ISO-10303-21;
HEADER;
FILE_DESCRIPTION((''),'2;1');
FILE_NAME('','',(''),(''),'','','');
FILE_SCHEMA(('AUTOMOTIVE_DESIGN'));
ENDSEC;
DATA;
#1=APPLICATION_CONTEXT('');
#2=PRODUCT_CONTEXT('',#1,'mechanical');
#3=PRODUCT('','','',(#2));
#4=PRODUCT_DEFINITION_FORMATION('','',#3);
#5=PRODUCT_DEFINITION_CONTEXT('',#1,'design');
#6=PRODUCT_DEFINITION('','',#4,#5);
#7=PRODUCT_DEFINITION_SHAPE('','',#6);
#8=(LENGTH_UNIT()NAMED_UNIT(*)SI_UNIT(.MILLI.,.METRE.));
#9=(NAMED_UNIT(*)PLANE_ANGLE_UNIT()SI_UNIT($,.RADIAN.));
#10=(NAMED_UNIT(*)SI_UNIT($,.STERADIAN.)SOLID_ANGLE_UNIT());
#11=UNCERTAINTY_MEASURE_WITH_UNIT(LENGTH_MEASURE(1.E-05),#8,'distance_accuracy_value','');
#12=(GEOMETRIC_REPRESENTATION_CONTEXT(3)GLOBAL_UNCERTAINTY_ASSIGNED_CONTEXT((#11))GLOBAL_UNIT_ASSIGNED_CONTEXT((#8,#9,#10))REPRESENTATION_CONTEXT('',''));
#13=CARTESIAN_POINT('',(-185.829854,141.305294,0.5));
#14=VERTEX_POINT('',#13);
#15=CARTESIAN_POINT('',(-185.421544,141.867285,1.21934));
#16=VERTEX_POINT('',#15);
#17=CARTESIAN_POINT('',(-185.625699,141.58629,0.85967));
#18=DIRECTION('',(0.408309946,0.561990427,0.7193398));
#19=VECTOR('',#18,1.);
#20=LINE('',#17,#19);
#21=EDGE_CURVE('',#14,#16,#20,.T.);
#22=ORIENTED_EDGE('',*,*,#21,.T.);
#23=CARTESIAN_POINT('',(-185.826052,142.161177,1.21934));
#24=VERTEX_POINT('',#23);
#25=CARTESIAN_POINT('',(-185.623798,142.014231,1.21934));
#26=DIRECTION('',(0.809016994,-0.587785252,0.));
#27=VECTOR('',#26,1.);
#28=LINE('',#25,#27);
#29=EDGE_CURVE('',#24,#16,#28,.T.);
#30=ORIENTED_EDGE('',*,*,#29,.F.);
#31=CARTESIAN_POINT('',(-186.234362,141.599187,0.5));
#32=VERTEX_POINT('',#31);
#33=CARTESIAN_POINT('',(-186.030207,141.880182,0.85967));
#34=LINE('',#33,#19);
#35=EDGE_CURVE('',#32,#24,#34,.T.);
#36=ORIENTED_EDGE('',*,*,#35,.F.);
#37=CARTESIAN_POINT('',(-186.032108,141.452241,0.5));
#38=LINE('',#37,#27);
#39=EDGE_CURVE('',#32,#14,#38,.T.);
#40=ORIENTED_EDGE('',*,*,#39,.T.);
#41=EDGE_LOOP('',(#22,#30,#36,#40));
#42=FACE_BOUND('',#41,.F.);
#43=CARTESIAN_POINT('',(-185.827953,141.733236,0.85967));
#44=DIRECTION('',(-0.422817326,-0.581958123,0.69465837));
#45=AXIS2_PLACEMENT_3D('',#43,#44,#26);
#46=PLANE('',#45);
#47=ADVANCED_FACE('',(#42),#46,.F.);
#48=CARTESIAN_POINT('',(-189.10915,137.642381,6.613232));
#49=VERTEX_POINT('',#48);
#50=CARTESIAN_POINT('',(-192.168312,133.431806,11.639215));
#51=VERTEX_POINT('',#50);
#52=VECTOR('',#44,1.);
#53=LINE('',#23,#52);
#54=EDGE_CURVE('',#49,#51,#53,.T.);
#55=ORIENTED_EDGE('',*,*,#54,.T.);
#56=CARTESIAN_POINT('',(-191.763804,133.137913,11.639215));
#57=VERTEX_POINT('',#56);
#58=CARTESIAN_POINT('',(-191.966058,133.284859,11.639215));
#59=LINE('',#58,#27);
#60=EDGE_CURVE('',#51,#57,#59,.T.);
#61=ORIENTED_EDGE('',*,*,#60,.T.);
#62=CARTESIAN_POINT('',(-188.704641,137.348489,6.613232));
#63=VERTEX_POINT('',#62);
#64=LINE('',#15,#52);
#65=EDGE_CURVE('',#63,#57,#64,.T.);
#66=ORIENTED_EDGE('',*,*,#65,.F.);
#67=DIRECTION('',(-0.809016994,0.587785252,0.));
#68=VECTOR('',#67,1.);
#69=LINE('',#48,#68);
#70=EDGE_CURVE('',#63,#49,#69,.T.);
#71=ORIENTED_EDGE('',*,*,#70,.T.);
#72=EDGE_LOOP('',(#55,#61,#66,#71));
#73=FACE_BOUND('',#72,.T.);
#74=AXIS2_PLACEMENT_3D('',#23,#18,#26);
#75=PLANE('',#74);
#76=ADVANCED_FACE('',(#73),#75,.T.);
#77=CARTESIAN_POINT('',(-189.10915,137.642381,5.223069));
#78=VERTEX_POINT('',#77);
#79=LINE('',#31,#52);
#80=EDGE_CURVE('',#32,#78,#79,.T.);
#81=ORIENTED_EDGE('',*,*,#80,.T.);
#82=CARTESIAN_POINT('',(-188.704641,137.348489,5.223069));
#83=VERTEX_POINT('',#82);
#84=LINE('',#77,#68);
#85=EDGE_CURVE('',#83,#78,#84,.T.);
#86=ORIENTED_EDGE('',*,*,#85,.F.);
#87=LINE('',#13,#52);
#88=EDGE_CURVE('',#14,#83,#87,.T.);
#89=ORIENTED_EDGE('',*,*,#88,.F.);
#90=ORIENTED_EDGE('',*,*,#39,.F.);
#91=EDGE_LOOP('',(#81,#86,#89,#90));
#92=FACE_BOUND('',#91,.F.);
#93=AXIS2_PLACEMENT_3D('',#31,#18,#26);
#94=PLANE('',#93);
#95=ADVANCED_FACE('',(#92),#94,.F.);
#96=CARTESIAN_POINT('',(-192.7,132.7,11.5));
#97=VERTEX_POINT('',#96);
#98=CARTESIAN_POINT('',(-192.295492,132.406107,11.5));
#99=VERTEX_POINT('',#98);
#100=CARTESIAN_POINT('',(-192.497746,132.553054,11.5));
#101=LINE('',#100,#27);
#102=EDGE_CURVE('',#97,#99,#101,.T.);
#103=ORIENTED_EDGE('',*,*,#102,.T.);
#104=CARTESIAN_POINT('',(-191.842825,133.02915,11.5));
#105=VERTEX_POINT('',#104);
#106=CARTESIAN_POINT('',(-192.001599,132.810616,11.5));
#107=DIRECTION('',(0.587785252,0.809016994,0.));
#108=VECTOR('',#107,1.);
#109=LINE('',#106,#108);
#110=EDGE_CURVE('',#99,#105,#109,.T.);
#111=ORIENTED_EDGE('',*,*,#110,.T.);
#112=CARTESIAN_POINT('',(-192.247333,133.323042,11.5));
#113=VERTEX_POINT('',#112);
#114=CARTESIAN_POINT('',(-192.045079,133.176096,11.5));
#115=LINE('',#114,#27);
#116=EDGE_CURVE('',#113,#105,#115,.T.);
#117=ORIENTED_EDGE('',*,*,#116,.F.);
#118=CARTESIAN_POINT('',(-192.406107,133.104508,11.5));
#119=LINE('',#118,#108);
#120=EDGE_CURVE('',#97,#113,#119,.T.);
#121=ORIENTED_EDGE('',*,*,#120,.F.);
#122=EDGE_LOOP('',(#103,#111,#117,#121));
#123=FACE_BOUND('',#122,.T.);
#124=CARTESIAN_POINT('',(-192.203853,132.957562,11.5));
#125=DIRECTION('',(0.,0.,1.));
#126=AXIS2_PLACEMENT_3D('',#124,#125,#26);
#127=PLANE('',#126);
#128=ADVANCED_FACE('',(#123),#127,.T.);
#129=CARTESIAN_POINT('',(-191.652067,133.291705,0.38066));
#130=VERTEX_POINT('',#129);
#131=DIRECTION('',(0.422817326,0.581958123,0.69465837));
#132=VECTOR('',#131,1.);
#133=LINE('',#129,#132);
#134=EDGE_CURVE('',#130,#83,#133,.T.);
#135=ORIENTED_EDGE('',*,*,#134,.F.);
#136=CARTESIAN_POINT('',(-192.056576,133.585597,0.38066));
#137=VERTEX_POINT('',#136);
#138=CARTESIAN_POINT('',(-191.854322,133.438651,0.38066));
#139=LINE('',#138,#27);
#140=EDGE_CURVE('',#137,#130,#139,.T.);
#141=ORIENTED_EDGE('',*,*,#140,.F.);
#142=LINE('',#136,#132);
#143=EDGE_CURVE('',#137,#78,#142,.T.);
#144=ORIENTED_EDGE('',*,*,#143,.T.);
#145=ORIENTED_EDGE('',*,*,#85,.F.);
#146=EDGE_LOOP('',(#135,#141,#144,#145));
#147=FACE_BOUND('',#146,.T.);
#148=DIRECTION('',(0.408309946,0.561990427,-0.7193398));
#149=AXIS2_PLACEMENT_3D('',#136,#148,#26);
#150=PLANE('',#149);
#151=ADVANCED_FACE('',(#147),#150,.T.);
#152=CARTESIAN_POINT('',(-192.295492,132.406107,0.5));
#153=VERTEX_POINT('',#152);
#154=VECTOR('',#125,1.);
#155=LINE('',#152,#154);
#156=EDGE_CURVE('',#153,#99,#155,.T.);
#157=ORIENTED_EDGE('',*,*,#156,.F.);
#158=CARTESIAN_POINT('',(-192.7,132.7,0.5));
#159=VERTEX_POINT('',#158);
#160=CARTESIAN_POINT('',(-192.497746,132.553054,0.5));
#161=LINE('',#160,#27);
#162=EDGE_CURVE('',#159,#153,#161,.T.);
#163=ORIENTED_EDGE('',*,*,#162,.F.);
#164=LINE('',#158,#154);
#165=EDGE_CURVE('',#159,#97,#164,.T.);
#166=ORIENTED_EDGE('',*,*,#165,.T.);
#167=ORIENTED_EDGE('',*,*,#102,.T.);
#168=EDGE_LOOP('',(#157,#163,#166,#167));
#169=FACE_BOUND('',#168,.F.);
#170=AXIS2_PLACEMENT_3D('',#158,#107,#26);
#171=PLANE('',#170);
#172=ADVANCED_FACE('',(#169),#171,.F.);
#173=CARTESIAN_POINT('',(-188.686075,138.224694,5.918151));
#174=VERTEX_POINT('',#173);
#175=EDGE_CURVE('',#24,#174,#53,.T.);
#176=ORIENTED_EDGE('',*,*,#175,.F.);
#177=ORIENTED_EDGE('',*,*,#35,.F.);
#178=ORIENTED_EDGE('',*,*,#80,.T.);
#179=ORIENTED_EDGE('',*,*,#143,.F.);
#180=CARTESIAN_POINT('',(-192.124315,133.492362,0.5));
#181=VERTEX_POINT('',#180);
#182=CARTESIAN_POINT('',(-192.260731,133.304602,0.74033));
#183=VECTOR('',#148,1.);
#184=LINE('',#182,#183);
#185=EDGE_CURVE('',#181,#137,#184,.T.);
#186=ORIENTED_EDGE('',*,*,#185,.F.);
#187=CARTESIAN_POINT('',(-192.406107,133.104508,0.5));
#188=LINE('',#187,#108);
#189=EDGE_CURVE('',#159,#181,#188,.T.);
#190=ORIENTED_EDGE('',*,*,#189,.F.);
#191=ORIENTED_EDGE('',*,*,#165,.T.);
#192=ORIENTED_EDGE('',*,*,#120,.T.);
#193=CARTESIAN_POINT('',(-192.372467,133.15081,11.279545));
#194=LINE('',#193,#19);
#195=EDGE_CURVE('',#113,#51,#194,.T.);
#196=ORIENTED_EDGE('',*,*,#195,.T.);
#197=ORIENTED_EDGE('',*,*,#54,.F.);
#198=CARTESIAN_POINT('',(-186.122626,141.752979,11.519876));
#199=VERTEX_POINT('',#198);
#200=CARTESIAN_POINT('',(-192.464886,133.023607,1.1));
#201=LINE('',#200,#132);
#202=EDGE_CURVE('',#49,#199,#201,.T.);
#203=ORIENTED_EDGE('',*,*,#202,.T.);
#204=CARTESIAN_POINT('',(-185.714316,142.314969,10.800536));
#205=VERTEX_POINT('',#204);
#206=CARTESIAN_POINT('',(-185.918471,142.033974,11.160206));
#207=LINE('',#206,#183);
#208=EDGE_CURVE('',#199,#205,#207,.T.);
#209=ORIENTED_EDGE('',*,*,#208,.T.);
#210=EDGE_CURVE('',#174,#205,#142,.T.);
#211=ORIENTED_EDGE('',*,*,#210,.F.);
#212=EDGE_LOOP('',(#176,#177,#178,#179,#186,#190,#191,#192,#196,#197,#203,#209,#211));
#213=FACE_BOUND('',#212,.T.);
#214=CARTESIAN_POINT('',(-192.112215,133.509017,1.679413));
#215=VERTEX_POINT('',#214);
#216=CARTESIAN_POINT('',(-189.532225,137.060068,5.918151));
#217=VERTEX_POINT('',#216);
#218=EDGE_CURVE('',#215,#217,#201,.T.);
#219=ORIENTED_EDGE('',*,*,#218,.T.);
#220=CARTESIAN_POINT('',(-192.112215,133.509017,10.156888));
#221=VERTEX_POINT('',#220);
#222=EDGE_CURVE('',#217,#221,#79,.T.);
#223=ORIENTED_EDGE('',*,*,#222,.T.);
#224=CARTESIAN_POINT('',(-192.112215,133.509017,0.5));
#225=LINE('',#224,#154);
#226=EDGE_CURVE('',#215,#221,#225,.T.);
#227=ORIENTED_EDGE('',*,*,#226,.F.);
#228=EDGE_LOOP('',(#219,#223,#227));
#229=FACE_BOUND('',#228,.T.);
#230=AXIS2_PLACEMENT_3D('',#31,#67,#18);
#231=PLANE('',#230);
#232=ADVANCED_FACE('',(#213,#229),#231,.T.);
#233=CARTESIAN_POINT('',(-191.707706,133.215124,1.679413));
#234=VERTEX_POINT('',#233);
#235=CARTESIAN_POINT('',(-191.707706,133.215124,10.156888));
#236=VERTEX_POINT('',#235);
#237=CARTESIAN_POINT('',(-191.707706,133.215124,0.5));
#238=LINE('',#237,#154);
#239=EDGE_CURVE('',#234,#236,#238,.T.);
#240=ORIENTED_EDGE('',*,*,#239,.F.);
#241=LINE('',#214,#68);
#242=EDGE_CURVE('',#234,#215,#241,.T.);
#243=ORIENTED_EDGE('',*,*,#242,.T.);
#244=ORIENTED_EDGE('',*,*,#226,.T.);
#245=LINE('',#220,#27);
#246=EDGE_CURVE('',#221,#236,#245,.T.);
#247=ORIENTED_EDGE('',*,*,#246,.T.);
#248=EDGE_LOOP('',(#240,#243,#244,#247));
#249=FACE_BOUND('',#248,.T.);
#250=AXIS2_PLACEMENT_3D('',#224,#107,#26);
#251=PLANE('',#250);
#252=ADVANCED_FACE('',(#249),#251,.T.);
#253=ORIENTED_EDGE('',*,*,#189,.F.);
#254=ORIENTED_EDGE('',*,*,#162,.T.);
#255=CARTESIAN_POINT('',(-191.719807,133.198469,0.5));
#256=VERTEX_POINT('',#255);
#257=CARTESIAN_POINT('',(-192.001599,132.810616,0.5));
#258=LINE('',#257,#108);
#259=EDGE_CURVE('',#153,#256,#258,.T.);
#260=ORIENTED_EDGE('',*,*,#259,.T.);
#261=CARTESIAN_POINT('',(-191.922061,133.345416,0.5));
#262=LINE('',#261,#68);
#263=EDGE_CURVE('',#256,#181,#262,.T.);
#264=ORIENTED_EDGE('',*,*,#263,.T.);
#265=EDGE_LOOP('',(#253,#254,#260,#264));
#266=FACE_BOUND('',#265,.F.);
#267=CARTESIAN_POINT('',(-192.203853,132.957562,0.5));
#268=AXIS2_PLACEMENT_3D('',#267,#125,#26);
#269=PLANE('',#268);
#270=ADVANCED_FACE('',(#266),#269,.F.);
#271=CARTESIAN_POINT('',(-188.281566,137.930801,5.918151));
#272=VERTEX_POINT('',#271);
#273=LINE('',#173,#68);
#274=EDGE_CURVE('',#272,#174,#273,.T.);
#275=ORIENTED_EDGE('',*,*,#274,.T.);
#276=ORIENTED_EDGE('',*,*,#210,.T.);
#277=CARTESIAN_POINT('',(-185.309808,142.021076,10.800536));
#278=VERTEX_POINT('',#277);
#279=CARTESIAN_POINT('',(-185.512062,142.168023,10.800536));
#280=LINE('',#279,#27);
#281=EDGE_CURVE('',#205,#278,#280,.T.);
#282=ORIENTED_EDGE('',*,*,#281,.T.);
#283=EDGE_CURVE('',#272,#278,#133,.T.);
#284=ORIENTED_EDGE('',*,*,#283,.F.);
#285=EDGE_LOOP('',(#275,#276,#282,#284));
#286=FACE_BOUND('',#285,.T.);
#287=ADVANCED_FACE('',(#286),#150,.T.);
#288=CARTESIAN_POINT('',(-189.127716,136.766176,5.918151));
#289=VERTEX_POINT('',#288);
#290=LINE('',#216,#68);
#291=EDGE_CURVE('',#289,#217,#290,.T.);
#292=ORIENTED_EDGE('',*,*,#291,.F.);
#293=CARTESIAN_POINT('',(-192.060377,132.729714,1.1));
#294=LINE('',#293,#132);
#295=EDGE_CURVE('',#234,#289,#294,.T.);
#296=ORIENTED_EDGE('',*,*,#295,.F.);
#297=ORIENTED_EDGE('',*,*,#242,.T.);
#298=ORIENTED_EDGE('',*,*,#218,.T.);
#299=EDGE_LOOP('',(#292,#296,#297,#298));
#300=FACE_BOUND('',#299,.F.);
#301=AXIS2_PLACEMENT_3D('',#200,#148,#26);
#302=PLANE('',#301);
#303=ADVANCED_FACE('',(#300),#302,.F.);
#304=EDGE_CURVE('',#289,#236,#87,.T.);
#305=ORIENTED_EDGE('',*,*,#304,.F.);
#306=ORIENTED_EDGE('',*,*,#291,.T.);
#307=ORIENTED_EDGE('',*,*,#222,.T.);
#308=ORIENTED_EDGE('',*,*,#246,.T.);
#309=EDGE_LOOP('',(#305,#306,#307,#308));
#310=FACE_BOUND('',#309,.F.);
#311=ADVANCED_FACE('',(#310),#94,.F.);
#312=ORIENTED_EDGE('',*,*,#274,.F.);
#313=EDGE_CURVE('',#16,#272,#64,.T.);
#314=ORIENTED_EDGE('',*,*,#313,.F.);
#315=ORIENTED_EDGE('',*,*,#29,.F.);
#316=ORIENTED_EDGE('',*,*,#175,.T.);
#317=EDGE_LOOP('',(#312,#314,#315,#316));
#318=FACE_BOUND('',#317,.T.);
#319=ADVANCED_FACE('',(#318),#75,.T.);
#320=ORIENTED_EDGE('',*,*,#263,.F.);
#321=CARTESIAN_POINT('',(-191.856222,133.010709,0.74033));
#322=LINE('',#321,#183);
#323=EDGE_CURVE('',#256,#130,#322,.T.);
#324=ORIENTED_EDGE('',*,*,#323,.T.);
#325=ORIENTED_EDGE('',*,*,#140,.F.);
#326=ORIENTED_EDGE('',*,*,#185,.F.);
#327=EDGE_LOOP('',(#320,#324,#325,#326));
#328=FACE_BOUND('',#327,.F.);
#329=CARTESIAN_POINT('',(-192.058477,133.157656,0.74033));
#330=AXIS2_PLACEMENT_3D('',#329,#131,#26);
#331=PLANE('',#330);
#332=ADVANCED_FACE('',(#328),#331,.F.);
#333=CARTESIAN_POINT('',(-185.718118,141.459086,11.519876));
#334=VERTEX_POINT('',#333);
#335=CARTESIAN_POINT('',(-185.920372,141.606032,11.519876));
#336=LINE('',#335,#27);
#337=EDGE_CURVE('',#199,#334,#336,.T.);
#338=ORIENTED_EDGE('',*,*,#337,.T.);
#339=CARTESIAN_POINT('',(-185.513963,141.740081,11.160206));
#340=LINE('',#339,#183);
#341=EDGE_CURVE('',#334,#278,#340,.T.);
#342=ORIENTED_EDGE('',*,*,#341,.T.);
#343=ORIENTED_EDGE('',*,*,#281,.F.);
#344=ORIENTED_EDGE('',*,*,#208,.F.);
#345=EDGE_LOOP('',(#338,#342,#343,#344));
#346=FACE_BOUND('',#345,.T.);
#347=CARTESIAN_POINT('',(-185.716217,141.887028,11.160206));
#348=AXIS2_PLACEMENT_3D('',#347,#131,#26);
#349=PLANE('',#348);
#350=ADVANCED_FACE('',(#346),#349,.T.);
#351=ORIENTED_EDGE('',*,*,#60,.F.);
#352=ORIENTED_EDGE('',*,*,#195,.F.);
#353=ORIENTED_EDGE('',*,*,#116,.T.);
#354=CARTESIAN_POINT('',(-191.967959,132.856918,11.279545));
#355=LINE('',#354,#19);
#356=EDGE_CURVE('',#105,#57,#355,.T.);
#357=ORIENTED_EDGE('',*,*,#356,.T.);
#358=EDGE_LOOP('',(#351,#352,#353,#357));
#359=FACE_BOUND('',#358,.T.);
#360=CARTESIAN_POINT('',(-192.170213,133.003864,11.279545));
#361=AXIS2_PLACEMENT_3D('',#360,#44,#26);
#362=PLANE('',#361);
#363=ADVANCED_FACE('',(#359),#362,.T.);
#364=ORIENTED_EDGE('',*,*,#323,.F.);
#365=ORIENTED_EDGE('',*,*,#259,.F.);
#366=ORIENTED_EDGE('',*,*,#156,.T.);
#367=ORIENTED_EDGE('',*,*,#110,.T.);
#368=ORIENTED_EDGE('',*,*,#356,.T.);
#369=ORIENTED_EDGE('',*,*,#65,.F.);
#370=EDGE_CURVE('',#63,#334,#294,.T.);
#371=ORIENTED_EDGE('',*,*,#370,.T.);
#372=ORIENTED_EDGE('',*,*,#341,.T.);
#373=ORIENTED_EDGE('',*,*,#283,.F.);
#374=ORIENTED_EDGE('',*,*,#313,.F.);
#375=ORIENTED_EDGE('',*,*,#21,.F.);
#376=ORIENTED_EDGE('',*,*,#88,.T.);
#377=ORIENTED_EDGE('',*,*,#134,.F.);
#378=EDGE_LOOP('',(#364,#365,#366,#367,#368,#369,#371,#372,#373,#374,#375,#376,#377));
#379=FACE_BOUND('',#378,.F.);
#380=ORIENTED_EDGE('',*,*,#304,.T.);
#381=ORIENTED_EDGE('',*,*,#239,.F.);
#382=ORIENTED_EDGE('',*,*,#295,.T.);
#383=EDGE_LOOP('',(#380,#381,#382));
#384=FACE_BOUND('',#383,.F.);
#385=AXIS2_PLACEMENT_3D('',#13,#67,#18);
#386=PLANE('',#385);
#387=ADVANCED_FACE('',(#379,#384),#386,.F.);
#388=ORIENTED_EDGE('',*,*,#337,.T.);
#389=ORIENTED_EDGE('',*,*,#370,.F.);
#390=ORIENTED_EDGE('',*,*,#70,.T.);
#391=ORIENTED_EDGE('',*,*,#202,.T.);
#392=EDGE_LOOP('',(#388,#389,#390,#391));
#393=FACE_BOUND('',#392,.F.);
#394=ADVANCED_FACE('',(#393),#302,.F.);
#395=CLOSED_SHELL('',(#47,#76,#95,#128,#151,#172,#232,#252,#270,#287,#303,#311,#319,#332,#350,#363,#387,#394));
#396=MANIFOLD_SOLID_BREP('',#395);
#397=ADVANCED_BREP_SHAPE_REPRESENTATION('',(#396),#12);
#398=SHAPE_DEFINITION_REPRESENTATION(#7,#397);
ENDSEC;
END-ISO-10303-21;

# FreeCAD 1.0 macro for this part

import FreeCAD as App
import Part
import Sketcher
from FreeCAD import Vector
Q = App.Units.Quantity

doc = App.newDocument("Part")
params = doc.addObject("Spreadsheet::Sheet", "Params")
for row, (alias, value) in enumerate([
    ("sketch1_height", "1 mm"),
    ("sketch1_width", "0.5 mm"),
    ("pad1_length", "15 mm"),
    ("sketch2_height", "1 mm"),
    ("sketch2_width", "0.5 mm"),
    ("pad2_length", "15 mm"),
    ("sketch3_height", "1 mm"),
    ("sketch3_width", "0.5 mm"),
    ("pad3_length", "11 mm"),
], start=1):
    params.set(f"A{row}", alias)
    params.set(f"B{row}", "=" + value)
    params.setAlias(f"B{row}", alias)

body = doc.addObject("PartDesign::Body", "Body")

# Sketch on XY plane
sketch1 = body.newObject("Sketcher::SketchObject", "Sketch")
sketch1.AttachmentSupport = (doc.getObject("XY_Plane"), [""])
sketch1.MapMode = "FlatFace"
sketch1.addGeometry(Part.LineSegment(Vector(0, 1, 0), Vector(0, 0, 0)), False)
sketch1.addGeometry(Part.LineSegment(Vector(0, 0, 0), Vector(0.5, 0, 0)), False)
sketch1.addGeometry(Part.LineSegment(Vector(0.5, 0, 0), Vector(0.5, 1, 0)), False)
sketch1.addGeometry(Part.LineSegment(Vector(0.5, 1, 0), Vector(0, 1, 0)), False)
sketch1.addConstraint(Sketcher.Constraint("Coincident", 0, 2, 1, 1))
sketch1.addConstraint(Sketcher.Constraint("Coincident", 1, 2, 2, 1))
sketch1.addConstraint(Sketcher.Constraint("Coincident", 2, 2, 3, 1))
sketch1.addConstraint(Sketcher.Constraint("Coincident", 3, 2, 0, 1))
sketch1.addConstraint(Sketcher.Constraint("Vertical", 0))
sketch1.addConstraint(Sketcher.Constraint("Horizontal", 1))
sketch1.addConstraint(Sketcher.Constraint("Vertical", 2))
sketch1.addConstraint(Sketcher.Constraint("Horizontal", 3))
sketch1.addConstraint(Sketcher.Constraint("Coincident", 0, 2, -1, 1))
sketch1.addConstraint(Sketcher.Constraint("DistanceY", 0, 2, 0, 1, Q("1 mm")))
sketch1.addConstraint(Sketcher.Constraint("DistanceX", 1, 1, 1, 2, Q("0.5 mm")))
sketch1.setExpression("Constraints[9]", "Params.sketch1_height")
sketch1.setExpression("Constraints[10]", "Params.sketch1_width")
pad1 = body.newObject("PartDesign::Pad", "Pad")
pad1.Profile = sketch1
pad1.setExpression("Length", "Params.pad1_length")
body2 = doc.addObject("PartDesign::Body", "Body001")
doc.recompute()

body.Placement = App.Placement(Vector(0, 0, 0), App.Rotation(Vector(1, 0, 0), 46))
boolean = body2.newObject("PartDesign::Boolean", "Boolean")
boolean.Type = "Fuse"
boolean.addObjects([body])
body3 = doc.addObject("PartDesign::Body", "Body002")
doc.recompute()

body2.Placement = App.Placement(Vector(0, 11, 0.5), App.Rotation(Vector(0, 0, 1), 0))
boolean2 = body3.newObject("PartDesign::Boolean", "Boolean001")
boolean2.Type = "Fuse"
boolean2.addObjects([body2])
body4 = doc.addObject("PartDesign::Body", "Body003")

# Sketch on XY plane
sketch2 = body4.newObject("Sketcher::SketchObject", "Sketch001")
sketch2.AttachmentSupport = (doc.getObject("XY_Plane003"), [""])
sketch2.MapMode = "FlatFace"
sketch2.addGeometry(Part.LineSegment(Vector(0, 1, 0), Vector(0, 0, 0)), False)
sketch2.addGeometry(Part.LineSegment(Vector(0, 0, 0), Vector(0.5, 0, 0)), False)
sketch2.addGeometry(Part.LineSegment(Vector(0.5, 0, 0), Vector(0.5, 1, 0)), False)
sketch2.addGeometry(Part.LineSegment(Vector(0.5, 1, 0), Vector(0, 1, 0)), False)
sketch2.addConstraint(Sketcher.Constraint("Coincident", 0, 2, 1, 1))
sketch2.addConstraint(Sketcher.Constraint("Coincident", 1, 2, 2, 1))
sketch2.addConstraint(Sketcher.Constraint("Coincident", 2, 2, 3, 1))
sketch2.addConstraint(Sketcher.Constraint("Coincident", 3, 2, 0, 1))
sketch2.addConstraint(Sketcher.Constraint("Vertical", 0))
sketch2.addConstraint(Sketcher.Constraint("Horizontal", 1))
sketch2.addConstraint(Sketcher.Constraint("Vertical", 2))
sketch2.addConstraint(Sketcher.Constraint("Horizontal", 3))
sketch2.addConstraint(Sketcher.Constraint("Coincident", 0, 2, -1, 1))
sketch2.addConstraint(Sketcher.Constraint("DistanceY", 0, 2, 0, 1, Q("1 mm")))
sketch2.addConstraint(Sketcher.Constraint("DistanceX", 1, 1, 1, 2, Q("0.5 mm")))
sketch2.setExpression("Constraints[9]", "Params.sketch2_height")
sketch2.setExpression("Constraints[10]", "Params.sketch2_width")
pad2 = body4.newObject("PartDesign::Pad", "Pad001")
pad2.Profile = sketch2
pad2.setExpression("Length", "Params.pad2_length")
body5 = doc.addObject("PartDesign::Body", "Body004")
doc.recompute()

body4.Placement = App.Placement(Vector(0, 0, 0), App.Rotation(Vector(1, 0, 0), 314))
boolean3 = body5.newObject("PartDesign::Boolean", "Boolean002")
boolean3.Type = "Fuse"
boolean3.addObjects([body4])
body6 = doc.addObject("PartDesign::Body", "Body005")
doc.recompute()

body5.Placement = App.Placement(Vector(0, 0.4, 1.1), App.Rotation(Vector(0, 0, 1), 0))
boolean4 = body6.newObject("PartDesign::Boolean", "Boolean003")
boolean4.Type = "Fuse"
boolean4.addObjects([body5])
body7 = doc.addObject("PartDesign::Body", "Body006")

# Sketch on XY plane
sketch3 = body7.newObject("Sketcher::SketchObject", "Sketch002")
sketch3.AttachmentSupport = (doc.getObject("XY_Plane006"), [""])
sketch3.MapMode = "FlatFace"
sketch3.AttachmentOffset = App.Placement(Vector(0, 0, 0.5), App.Rotation())
sketch3.addGeometry(Part.LineSegment(Vector(0, 1, 0), Vector(0, 0, 0)), False)
sketch3.addGeometry(Part.LineSegment(Vector(0, 0, 0), Vector(0.5, 0, 0)), False)
sketch3.addGeometry(Part.LineSegment(Vector(0.5, 0, 0), Vector(0.5, 1, 0)), False)
sketch3.addGeometry(Part.LineSegment(Vector(0.5, 1, 0), Vector(0, 1, 0)), False)
sketch3.addConstraint(Sketcher.Constraint("Coincident", 0, 2, 1, 1))
sketch3.addConstraint(Sketcher.Constraint("Coincident", 1, 2, 2, 1))
sketch3.addConstraint(Sketcher.Constraint("Coincident", 2, 2, 3, 1))
sketch3.addConstraint(Sketcher.Constraint("Coincident", 3, 2, 0, 1))
sketch3.addConstraint(Sketcher.Constraint("Vertical", 0))
sketch3.addConstraint(Sketcher.Constraint("Horizontal", 1))
sketch3.addConstraint(Sketcher.Constraint("Vertical", 2))
sketch3.addConstraint(Sketcher.Constraint("Horizontal", 3))
sketch3.addConstraint(Sketcher.Constraint("Coincident", 0, 2, -1, 1))
sketch3.addConstraint(Sketcher.Constraint("DistanceY", 0, 2, 0, 1, Q("1 mm")))
sketch3.addConstraint(Sketcher.Constraint("DistanceX", 1, 1, 1, 2, Q("0.5 mm")))
sketch3.setExpression("Constraints[9]", "Params.sketch3_height")
sketch3.setExpression("Constraints[10]", "Params.sketch3_width")
pad3 = body7.newObject("PartDesign::Pad", "Pad002")
pad3.Profile = sketch3
pad3.setExpression("Length", "Params.pad3_length")
doc.recompute()

boolean5 = body7.newObject("PartDesign::Boolean", "Boolean004")
boolean5.Type = "Fuse"
boolean5.addObjects([body3])
doc.recompute()

boolean6 = body7.newObject("PartDesign::Boolean", "Boolean005")
boolean6.Type = "Fuse"
boolean6.addObjects([body6])
body8 = doc.addObject("PartDesign::Body", "Body007")
doc.recompute()

body7.Placement = App.Placement(Vector(-192.7, 132.7, 0), App.Rotation(Vector(0, 0, 1), 324))
boolean7 = body8.newObject("PartDesign::Boolean", "Boolean006")
boolean7.Type = "Fuse"
boolean7.addObjects([body7])

doc.recompute()
